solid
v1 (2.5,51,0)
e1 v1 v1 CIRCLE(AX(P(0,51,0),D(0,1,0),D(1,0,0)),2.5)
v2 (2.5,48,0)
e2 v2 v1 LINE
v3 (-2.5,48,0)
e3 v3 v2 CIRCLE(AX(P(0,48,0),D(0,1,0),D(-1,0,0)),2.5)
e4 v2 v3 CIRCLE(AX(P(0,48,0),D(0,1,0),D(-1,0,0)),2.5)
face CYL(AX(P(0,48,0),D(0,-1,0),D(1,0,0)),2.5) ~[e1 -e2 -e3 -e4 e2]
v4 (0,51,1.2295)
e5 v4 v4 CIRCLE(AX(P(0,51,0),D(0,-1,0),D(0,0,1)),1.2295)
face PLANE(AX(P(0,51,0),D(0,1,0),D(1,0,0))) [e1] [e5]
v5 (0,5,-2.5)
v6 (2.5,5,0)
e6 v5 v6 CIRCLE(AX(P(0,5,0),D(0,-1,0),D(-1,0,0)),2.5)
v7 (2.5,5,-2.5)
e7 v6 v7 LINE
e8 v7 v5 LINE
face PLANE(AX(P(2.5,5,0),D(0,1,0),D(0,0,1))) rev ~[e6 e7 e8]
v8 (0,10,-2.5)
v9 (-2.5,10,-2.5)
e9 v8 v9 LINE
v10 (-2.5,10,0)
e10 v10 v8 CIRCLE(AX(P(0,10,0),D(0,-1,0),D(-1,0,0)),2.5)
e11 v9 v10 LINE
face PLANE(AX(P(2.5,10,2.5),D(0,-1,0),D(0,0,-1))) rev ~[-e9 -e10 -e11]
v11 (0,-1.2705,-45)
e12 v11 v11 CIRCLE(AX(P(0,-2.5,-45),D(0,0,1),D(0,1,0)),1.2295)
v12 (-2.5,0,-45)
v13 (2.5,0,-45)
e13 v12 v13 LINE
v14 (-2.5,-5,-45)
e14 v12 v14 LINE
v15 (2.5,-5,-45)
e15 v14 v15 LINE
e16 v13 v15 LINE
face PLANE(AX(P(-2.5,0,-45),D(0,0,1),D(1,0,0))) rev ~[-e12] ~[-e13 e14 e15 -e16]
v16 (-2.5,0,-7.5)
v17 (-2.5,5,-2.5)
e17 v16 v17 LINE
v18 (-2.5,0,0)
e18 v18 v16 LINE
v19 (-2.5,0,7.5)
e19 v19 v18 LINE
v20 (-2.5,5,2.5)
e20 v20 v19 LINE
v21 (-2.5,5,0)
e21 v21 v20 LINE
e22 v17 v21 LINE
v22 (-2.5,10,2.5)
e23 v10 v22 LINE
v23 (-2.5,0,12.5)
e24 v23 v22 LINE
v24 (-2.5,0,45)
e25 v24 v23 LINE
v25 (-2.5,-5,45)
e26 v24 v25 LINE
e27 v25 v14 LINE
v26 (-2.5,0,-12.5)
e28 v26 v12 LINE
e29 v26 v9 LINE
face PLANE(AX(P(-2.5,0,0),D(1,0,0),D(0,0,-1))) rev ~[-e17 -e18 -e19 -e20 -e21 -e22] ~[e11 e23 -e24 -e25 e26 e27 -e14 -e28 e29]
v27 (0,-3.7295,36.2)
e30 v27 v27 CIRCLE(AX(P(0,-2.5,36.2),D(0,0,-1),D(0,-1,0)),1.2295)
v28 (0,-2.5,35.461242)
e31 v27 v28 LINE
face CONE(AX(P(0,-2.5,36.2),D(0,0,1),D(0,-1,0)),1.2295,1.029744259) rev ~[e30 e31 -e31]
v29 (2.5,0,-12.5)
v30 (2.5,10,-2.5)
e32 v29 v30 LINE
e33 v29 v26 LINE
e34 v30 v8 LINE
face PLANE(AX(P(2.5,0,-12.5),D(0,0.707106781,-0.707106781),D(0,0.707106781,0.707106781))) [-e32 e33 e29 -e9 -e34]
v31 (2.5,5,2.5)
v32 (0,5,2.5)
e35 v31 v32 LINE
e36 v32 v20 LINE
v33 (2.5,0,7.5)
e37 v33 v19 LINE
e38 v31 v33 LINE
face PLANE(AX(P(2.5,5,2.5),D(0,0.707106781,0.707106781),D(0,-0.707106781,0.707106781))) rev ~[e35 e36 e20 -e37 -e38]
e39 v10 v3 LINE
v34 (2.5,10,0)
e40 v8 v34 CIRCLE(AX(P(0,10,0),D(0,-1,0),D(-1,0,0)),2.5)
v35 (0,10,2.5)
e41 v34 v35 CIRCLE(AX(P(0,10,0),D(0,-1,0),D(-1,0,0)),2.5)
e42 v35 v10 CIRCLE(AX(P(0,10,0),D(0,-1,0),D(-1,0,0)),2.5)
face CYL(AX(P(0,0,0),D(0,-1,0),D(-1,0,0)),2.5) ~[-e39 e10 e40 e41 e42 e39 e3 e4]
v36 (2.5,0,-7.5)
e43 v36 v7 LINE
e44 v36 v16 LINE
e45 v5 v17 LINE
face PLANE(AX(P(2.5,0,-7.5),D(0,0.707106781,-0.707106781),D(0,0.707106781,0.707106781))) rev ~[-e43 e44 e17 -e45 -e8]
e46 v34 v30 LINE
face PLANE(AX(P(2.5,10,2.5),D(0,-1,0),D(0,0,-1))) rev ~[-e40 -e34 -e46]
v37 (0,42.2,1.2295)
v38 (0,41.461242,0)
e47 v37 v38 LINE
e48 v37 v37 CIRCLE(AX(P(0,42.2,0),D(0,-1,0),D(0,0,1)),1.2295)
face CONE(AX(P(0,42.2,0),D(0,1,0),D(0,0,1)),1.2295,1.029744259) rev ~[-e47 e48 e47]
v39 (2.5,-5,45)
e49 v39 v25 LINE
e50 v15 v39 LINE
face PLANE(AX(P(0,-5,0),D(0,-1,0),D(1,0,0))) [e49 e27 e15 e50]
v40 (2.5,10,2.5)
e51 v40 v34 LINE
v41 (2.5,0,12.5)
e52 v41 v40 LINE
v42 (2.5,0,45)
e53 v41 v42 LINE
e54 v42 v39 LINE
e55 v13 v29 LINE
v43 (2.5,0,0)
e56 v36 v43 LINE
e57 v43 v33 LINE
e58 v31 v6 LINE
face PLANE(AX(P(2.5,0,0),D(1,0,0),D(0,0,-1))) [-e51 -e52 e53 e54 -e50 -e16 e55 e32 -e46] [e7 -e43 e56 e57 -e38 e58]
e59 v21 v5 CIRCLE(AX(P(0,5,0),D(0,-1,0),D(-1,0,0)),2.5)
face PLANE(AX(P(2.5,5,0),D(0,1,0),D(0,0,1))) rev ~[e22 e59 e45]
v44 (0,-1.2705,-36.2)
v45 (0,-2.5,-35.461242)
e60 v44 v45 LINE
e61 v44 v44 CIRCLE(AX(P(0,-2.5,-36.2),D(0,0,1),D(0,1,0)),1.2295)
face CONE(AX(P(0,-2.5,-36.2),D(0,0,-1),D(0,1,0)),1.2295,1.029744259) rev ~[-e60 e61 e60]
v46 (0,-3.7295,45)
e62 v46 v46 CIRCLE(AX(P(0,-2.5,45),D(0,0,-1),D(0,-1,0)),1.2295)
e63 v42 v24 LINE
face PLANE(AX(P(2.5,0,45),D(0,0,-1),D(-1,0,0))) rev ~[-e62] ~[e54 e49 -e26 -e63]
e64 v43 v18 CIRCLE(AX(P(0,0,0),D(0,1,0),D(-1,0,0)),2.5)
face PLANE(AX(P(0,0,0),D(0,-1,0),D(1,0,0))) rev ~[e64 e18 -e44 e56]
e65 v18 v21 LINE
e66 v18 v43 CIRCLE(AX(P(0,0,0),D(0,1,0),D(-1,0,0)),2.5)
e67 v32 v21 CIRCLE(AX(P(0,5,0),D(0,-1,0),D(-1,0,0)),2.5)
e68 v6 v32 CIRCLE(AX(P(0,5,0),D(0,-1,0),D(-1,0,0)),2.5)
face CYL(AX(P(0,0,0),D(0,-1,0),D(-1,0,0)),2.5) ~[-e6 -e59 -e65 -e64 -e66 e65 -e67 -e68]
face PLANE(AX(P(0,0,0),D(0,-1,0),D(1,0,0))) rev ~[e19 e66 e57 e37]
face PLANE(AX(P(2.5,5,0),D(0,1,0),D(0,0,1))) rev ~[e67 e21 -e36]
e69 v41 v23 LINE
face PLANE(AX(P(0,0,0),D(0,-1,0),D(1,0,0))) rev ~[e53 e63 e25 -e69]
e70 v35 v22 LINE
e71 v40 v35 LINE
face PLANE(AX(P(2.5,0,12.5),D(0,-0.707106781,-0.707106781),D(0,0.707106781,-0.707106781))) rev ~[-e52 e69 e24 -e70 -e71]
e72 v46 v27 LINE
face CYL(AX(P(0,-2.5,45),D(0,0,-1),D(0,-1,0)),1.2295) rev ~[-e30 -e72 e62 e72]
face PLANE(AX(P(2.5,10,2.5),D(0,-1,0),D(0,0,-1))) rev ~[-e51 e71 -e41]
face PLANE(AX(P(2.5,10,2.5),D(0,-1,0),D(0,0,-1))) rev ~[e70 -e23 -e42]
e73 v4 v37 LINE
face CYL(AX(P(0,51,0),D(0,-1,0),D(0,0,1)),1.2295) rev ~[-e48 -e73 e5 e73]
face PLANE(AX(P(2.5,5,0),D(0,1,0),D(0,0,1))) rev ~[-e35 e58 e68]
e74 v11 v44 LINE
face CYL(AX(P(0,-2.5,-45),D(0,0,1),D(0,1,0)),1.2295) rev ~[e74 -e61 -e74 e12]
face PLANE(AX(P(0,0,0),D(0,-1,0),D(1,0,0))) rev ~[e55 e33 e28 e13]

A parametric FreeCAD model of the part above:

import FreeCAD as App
import Part
import Sketcher


def add_polygon(sketch, points):
    """Adds a closed chain of lines whose ends are joined by coincident constraints."""
    first, n = sketch.GeometryCount, len(points)
    for a, b in zip(points, points[1:] + points[:1]):
        sketch.addGeometry(Part.LineSegment(App.Vector(*a, 0), App.Vector(*b, 0)), False)
    for i in range(n):
        sketch.addConstraint(Sketcher.Constraint("Coincident", first + i, 2, first + (i + 1) % n, 1))

doc = App.newDocument("Part")
params = doc.addObject("Spreadsheet::Sheet", "Params")
for row, (alias, value) in enumerate([
    ("sketch1_diameter", "5 mm"),
    ("pad1_length", "48 mm"),
    ("sketch2_height", "90 mm"),
    ("sketch2_width", "5 mm"),
    ("pad2_length", "5 mm"),
    ("hole_diameter", "2.459 mm"),
    ("hole_depth", "8.8 mm"),
    ("hole2_diameter", "2.459 mm"),
    ("hole2_depth", "8.8 mm"),
    ("sketch5_height", "5 mm"),
    ("pad3_length", "5 mm"),
    ("sketch6_diameter", "5 mm"),
    ("pad4_length", "3 mm"),
    ("hole3_diameter", "2.459 mm"),
    ("hole3_depth", "8.8 mm"),
], start=1):
    params.set(f"A{row}", alias)
    params.set(f"B{row}", "=" + value)
    params.setAlias(f"B{row}", alias)

body = doc.addObject("PartDesign::Body", "Body")

# Sketch on XZ plane
sketch1 = doc.addObject("Sketcher::SketchObject", "Sketch")
body.addObject(sketch1)
sketch1.AttachmentSupport = (doc.XZ_Plane, [""])
sketch1.MapMode = "FlatFace"
sketch1.addGeometry(Part.Circle(App.Vector(0, 0, 0), App.Vector(0, 0, 1), 2.5), False)
sketch1.addConstraint([
    Sketcher.Constraint("Coincident", 0, 3, -1, 1),
    Sketcher.Constraint("Diameter", 0, 5.0),
])
sketch1.setExpression("Constraints[1]", "Params.sketch1_diameter")
pad1 = doc.addObject("PartDesign::Pad", "Pad")
body.addObject(pad1)
pad1.Profile = sketch1
pad1.setExpression("Length", "Params.pad1_length")
pad1.Reversed = True

# Sketch on XZ plane
sketch2 = doc.addObject("Sketcher::SketchObject", "Sketch001")
body.addObject(sketch2)
sketch2.AttachmentSupport = (doc.XZ_Plane, [""])
sketch2.MapMode = "FlatFace"
add_polygon(sketch2, [(-2, -45), (2, -45), (2, 45), (-2, 45)])  # lines 0-3
sketch2.addConstraint([
    Sketcher.Constraint("Horizontal", 0),
    Sketcher.Constraint("Vertical", 1),
    Sketcher.Constraint("Horizontal", 2),
    Sketcher.Constraint("Vertical", 3),
    Sketcher.Constraint("Symmetric", 0, 2, 2, 2, -1, 1),
    Sketcher.Constraint("DistanceY", 1, 1, 1, 2, 90.0),
    Sketcher.Constraint("DistanceX", 0, 1, 0, 2, 5.0),
])
sketch2.setExpression("Constraints[9]", "Params.sketch2_height")
sketch2.setExpression("Constraints[10]", "Params.sketch2_width")
pad2 = doc.addObject("PartDesign::Pad", "Pad001")
body.addObject(pad2)
pad2.Profile = sketch2
pad2.setExpression("Length", "Params.pad2_length")

# Sketch on XY plane
sketch3 = doc.addObject("Sketcher::SketchObject", "Sketch002")
body.addObject(sketch3)
sketch3.AttachmentSupport = (doc.XY_Plane, [""])
sketch3.MapMode = "FlatFace"
sketch3.AttachmentOffset = App.Placement(App.Vector(0, 0, -45), App.Rotation())
sketch3.addGeometry(Part.Circle(App.Vector(0, -2.5, 0), App.Vector(0, 0, 1), 1.2), False)
sketch3.addConstraint([
    Sketcher.Constraint("PointOnObject", 0, 3, -2),
    Sketcher.Constraint("Diameter", 0, 2.459),
    Sketcher.Constraint("DistanceY", 0, 3, -1, 1, 2.5),
])
doc.recompute()
hole = doc.addObject("PartDesign::Hole", "Hole")
body.addObject(hole)
hole.Profile = sketch3
hole.ThreadType = "None"
hole.setExpression("Diameter", "Params.hole_diameter")
hole.DepthType = "Dimension"
hole.setExpression("Depth", "Params.hole_depth")
hole.DrillPoint = "Angled"
hole.DrillPointAngle = 118
hole.Reversed = True

# Sketch on XY plane
sketch4 = doc.addObject("Sketcher::SketchObject", "Sketch003")
body.addObject(sketch4)
sketch4.AttachmentSupport = (doc.XY_Plane, [""])
sketch4.MapMode = "FlatFace"
sketch4.AttachmentOffset = App.Placement(App.Vector(0, 0, 45), App.Rotation())
sketch4.addGeometry(Part.Circle(App.Vector(0, -2.5, 0), App.Vector(0, 0, 1), 1.2), False)
sketch4.addConstraint([
    Sketcher.Constraint("PointOnObject", 0, 3, -2),
    Sketcher.Constraint("Diameter", 0, 2.459),
    Sketcher.Constraint("DistanceY", 0, 3, -1, 1, 2.5),
])
doc.recompute()
hole2 = doc.addObject("PartDesign::Hole", "Hole001")
body.addObject(hole2)
hole2.Profile = sketch4
hole2.ThreadType = "None"
hole2.setExpression("Diameter", "Params.hole2_diameter")
hole2.DepthType = "Dimension"
hole2.setExpression("Depth", "Params.hole2_depth")
hole2.DrillPoint = "Angled"
hole2.DrillPointAngle = 118

# Sketch on YZ plane
sketch5 = doc.addObject("Sketcher::SketchObject", "Sketch004")
body.addObject(sketch5)
sketch5.AttachmentSupport = (doc.YZ_Plane, [""])
sketch5.MapMode = "FlatFace"
sketch5.AttachmentOffset = App.Placement(App.Vector(0, 0, 2.5), App.Rotation())
add_polygon(sketch5, [(10, 2), (0, 12), (0, 8), (5, 2), (5, -2), (0, -8), (0, -12), (10, -2)])  # lines 0-7
sketch5.addConstraint([
    Sketcher.Constraint("Vertical", 1),
    Sketcher.Constraint("Vertical", 3),
    Sketcher.Constraint("Vertical", 5),
    Sketcher.Constraint("Vertical", 7),
    Sketcher.Constraint("Symmetric", 1, 2, 4, 2, -1, 1),
    Sketcher.Constraint("Symmetric", 0, 2, 5, 2, -1),
    Sketcher.Constraint("Parallel", 0, 2),
    Sketcher.Constraint("Perpendicular", 2, 4),
    Sketcher.Constraint("Parallel", 4, 6),
    Sketcher.Constraint("Horizontal", 3, 2, 6, 2),
    Sketcher.Constraint("Horizontal", 2, 2, 7, 2),
    Sketcher.Constraint("Equal", 1, 3),
    Sketcher.Constraint("DistanceY", 1, 2, 1, 1, 5.0),
    Sketcher.Constraint("DistanceX", -1, 1, 2, 2, 5.0),
])
sketch5.setExpression("Constraints[20]", "Params.sketch5_height")
pad3 = doc.addObject("PartDesign::Pad", "Pad002")
body.addObject(pad3)
pad3.Profile = sketch5
pad3.setExpression("Length", "Params.pad3_length")
pad3.Reversed = True

# Sketch on XZ plane
sketch6 = doc.addObject("Sketcher::SketchObject", "Sketch005")
body.addObject(sketch6)
sketch6.AttachmentSupport = (doc.XZ_Plane, [""])
sketch6.MapMode = "FlatFace"
sketch6.AttachmentOffset = App.Placement(App.Vector(0, 0, -48), App.Rotation())
sketch6.addGeometry(Part.Circle(App.Vector(0, 0, 0), App.Vector(0, 0, 1), 2.5), False)
sketch6.addConstraint([
    Sketcher.Constraint("Coincident", 0, 3, -1, 1),
    Sketcher.Constraint("Diameter", 0, 5.0),
])
sketch6.setExpression("Constraints[1]", "Params.sketch6_diameter")
pad4 = doc.addObject("PartDesign::Pad", "Pad003")
body.addObject(pad4)
pad4.Profile = sketch6
pad4.setExpression("Length", "Params.pad4_length")
pad4.Reversed = True

# Sketch on XZ plane
sketch7 = doc.addObject("Sketcher::SketchObject", "Sketch006")
body.addObject(sketch7)
sketch7.AttachmentSupport = (doc.XZ_Plane, [""])
sketch7.MapMode = "FlatFace"
sketch7.AttachmentOffset = App.Placement(App.Vector(0, 0, -51), App.Rotation())
sketch7.addGeometry(Part.Circle(App.Vector(0, 0, 0), App.Vector(0, 0, 1), 1.2), False)
sketch7.addConstraint([
    Sketcher.Constraint("Coincident", 0, 3, -1, 1),
    Sketcher.Constraint("Diameter", 0, 2.459),
])
doc.recompute()
hole3 = doc.addObject("PartDesign::Hole", "Hole002")
body.addObject(hole3)
hole3.Profile = sketch7
hole3.ThreadType = "None"
hole3.setExpression("Diameter", "Params.hole3_diameter")
hole3.DepthType = "Dimension"
hole3.setExpression("Depth", "Params.hole3_depth")
hole3.DrillPoint = "Angled"
hole3.DrillPointAngle = 118
hole3.Reversed = True

doc.recompute()
